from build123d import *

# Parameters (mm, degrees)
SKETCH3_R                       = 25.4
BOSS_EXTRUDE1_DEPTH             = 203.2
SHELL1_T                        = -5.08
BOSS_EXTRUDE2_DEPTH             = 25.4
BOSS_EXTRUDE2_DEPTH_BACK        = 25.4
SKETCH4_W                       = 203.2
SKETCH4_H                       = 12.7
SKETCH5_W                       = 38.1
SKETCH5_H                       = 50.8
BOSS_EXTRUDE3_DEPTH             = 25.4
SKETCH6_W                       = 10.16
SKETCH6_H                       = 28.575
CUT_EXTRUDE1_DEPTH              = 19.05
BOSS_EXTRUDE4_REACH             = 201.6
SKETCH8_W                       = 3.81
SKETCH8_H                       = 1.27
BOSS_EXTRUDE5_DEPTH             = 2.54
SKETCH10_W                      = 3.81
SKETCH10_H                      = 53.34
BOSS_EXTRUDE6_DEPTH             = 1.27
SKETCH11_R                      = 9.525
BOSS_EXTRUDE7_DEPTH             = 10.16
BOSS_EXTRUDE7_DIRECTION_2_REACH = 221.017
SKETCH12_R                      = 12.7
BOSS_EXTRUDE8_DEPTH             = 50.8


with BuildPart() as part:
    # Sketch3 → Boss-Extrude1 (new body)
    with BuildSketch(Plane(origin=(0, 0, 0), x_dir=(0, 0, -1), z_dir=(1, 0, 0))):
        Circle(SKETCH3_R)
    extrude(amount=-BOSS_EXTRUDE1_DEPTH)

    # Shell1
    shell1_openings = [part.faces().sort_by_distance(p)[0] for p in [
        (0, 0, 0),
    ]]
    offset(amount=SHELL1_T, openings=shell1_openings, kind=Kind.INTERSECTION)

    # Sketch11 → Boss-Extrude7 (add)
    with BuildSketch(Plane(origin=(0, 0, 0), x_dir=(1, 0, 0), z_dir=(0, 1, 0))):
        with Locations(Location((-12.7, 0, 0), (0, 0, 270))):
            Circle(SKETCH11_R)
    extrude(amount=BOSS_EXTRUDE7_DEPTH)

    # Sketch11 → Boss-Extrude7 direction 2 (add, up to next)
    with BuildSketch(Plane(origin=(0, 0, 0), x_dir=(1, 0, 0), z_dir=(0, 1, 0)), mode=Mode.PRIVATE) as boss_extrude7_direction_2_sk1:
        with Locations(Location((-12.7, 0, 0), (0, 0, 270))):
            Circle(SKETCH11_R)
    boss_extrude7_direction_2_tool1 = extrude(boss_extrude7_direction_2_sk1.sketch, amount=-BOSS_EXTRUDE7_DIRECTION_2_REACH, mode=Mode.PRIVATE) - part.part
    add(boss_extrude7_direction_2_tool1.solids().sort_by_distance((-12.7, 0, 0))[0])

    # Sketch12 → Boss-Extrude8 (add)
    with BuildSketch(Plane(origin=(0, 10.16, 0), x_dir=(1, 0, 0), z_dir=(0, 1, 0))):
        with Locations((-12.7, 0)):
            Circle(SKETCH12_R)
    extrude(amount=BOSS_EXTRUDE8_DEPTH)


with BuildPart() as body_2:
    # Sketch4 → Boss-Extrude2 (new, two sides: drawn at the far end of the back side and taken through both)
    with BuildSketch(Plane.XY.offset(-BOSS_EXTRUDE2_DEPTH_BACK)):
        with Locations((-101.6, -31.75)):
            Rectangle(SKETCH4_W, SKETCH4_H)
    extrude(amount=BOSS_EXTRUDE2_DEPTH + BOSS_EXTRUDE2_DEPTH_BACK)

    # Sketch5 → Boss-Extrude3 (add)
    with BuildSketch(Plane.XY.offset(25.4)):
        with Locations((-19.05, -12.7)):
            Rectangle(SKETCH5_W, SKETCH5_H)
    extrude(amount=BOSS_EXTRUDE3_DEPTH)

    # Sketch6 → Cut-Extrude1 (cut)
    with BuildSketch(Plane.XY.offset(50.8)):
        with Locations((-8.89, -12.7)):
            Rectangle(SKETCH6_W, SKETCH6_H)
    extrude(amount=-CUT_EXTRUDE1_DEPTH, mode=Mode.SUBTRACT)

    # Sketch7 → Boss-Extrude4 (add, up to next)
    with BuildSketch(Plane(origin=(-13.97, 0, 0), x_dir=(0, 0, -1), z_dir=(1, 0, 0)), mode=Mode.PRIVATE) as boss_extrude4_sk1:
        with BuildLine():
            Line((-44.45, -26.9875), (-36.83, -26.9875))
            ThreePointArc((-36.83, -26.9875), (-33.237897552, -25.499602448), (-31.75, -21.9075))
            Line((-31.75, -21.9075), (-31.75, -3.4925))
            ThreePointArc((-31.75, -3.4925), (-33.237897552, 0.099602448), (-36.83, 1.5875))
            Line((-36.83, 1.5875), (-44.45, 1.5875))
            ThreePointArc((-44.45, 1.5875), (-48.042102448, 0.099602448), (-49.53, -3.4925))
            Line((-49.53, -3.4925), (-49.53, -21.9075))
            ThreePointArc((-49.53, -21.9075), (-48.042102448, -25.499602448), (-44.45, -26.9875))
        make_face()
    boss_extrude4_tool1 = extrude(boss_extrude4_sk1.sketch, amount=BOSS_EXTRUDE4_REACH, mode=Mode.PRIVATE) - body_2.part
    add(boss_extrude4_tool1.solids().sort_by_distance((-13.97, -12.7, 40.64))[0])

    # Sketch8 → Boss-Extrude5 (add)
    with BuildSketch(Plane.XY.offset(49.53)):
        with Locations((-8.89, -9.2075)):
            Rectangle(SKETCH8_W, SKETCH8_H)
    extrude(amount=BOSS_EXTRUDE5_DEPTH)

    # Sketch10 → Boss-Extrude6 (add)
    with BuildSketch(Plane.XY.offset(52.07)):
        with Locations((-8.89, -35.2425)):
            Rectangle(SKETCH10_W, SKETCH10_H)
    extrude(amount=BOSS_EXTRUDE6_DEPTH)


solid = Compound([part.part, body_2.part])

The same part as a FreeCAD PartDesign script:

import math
import FreeCAD as App
import Part
import Sketcher
from FreeCAD import Vector
Q = App.Units.Quantity


def faces_at(feature, points):
    """Names of the faces that lie closest to the given points."""
    faces = feature.Shape.Faces
    near = lambda p: min(range(len(faces)), key=lambda i: faces[i].distToShape(Part.Vertex(*p))[0])
    return sorted({f"Face{near(p) + 1}" for p in points})


def add_polygon(sketch, points):
    """Adds a closed chain of lines whose ends are joined by coincident constraints."""
    first, n = sketch.GeometryCount, len(points)
    for a, b in zip(points, points[1:] + points[:1]):
        sketch.addGeometry(Part.LineSegment(App.Vector(*a, 0), App.Vector(*b, 0)), False)
    for i in range(n):
        sketch.addConstraint(Sketcher.Constraint("Coincident", first + i, 2, first + (i + 1) % n, 1))

doc = App.newDocument("Part")
params = doc.addObject("Spreadsheet::Sheet", "Params")
for row, (alias, value) in enumerate([
    ("sketch1_diameter", "2 in"),
    ("pad1_length", "8 in"),
    ("thickness_wall", "0.2 in"),
    ("sketch2_diameter", "0.75 in"),
    ("pad2_length", "0.4 in"),
    ("sketch3_diameter", "0.75 in"),
    ("sketch4_diameter", "1 in"),
    ("pad4_length", "2 in"),
    ("sketch5_width", "8 in"),
    ("sketch5_height", "0.5 in"),
    ("pad5_length", "1 in"),
    ("pad5_length2", "1 in"),
    ("sketch6_height", "2 in"),
    ("sketch6_width", "1.5 in"),
    ("pad6_length", "1 in"),
    ("sketch7_width", "0.4 in"),
    ("sketch7_height", "1.125 in"),
    ("pocket1_length", "0.75 in"),
    ("sketch8_radius", "0.2 in"),
    ("sketch8_height", "0.3 in"),
    ("sketch8_width", "0.725 in"),
    ("sketch9_width", "0.15 in"),
    ("sketch9_height", "0.05 in"),
    ("pad8_length", "0.1 in"),
    ("sketch10_height", "2.1 in"),
    ("sketch10_width", "0.15 in"),
    ("pad9_length", "0.05 in"),
], start=1):
    params.set(f"A{row}", alias)
    params.set(f"B{row}", "=" + value)
    params.setAlias(f"B{row}", alias)

body = doc.addObject("PartDesign::Body", "Body")
body.AllowCompound = True

sketch1 = doc.addObject("Sketcher::SketchObject", "Sketch")
body.addObject(sketch1)
sketch1.AttachmentSupport = (doc.YZ_Plane, [""])
sketch1.MapMode = "FlatFace"
sketch1.addGeometry(Part.Circle(Vector(0, 0, 0), Vector(0, 0, 1), 25), False)
sketch1.addConstraint([
    Sketcher.Constraint("Coincident", 0, 3, -1, 1),
    Sketcher.Constraint("Diameter", 0, Q("2 in")),
])
sketch1.setExpression("Constraints[1]", "Params.sketch1_diameter")
pad1 = doc.addObject("PartDesign::Pad", "Pad")
body.addObject(pad1)
pad1.Profile = sketch1
pad1.setExpression("Length", "Params.pad1_length")
pad1.Reversed = True
doc.recompute()

thickness = doc.addObject("PartDesign::Thickness", "Thickness")
body.addObject(thickness)
thickness.Base = (pad1, faces_at(pad1, [(0, 0, 0)]))
thickness.setExpression("Value", "Params.thickness_wall")
thickness.Reversed = True
thickness.Join = "Intersection"

sketch2 = doc.addObject("Sketcher::SketchObject", "Sketch001")
body.addObject(sketch2)
sketch2.AttachmentSupport = (doc.XZ_Plane, [""])
sketch2.MapMode = "FlatFace"
sketch2.addGeometry(Part.Circle(Vector(-13, 0, 0), Vector(0, 0, 1), 10), False)
sketch2.addConstraint([
    Sketcher.Constraint("PointOnObject", 0, 3, -1),
    Sketcher.Constraint("Diameter", 0, Q("0.75 in")),
    Sketcher.Constraint("DistanceX", 0, 3, -1, 1, Q("0.5 in")),
])
sketch2.setExpression("Constraints[1]", "Params.sketch2_diameter")
pad2 = doc.addObject("PartDesign::Pad", "Pad001")
body.addObject(pad2)
pad2.Profile = sketch2
pad2.setExpression("Length", "Params.pad2_length")
pad2.Reversed = True

sketch3 = doc.addObject("Sketcher::SketchObject", "Sketch002")
body.addObject(sketch3)
sketch3.AttachmentSupport = (doc.XZ_Plane, [""])
sketch3.MapMode = "FlatFace"
sketch3.addGeometry(Part.Circle(Vector(-13, 0, 0), Vector(0, 0, 1), 10), False)
sketch3.addConstraint([
    Sketcher.Constraint("PointOnObject", 0, 3, -1),
    Sketcher.Constraint("Diameter", 0, Q("0.75 in")),
    Sketcher.Constraint("DistanceX", 0, 3, -1, 1, Q("0.5 in")),
])
sketch3.setExpression("Constraints[1]", "Params.sketch3_diameter")
pad3 = doc.addObject("PartDesign::Pad", "Pad002")
body.addObject(pad3)
pad3.Profile = sketch3
pad3.Type = "UpToFirst"

sketch4 = doc.addObject("Sketcher::SketchObject", "Sketch003")
body.addObject(sketch4)
sketch4.AttachmentSupport = (doc.XZ_Plane, [""])
sketch4.MapMode = "FlatFace"
sketch4.AttachmentOffset = App.Placement(Vector(0, 0, -0.4 * 25.4), App.Rotation())
sketch4.addGeometry(Part.Circle(Vector(-13, 0, 0), Vector(0, 0, 1), 13), False)
sketch4.addConstraint([
    Sketcher.Constraint("PointOnObject", 0, 3, -1),
    Sketcher.Constraint("Diameter", 0, Q("1 in")),
    Sketcher.Constraint("DistanceX", 0, 3, -1, 1, Q("0.5 in")),
])
sketch4.setExpression("Constraints[1]", "Params.sketch4_diameter")
pad4 = doc.addObject("PartDesign::Pad", "Pad003")
body.addObject(pad4)
pad4.Profile = sketch4
pad4.setExpression("Length", "Params.pad4_length")
pad4.Reversed = True
body2 = doc.addObject("PartDesign::Body", "Body001")

sketch5 = doc.addObject("Sketcher::SketchObject", "Sketch004")
body2.addObject(sketch5)
sketch5.AttachmentSupport = (doc.getObject("XY_Plane001"), [""])
sketch5.MapMode = "FlatFace"
add_polygon(sketch5, [(-203, -25), (-203, -38), (0, -38), (0, -25)])
sketch5.addConstraint([
    Sketcher.Constraint("Vertical", 0),
    Sketcher.Constraint("Horizontal", 1),
    Sketcher.Constraint("Vertical", 2),
    Sketcher.Constraint("Horizontal", 3),
    Sketcher.Constraint("PointOnObject", 1, 2, -2),
    Sketcher.Constraint("DistanceX", 1, 1, 1, 2, Q("8 in")),
    Sketcher.Constraint("DistanceY", 0, 2, 0, 1, Q("0.5 in")),
    Sketcher.Constraint("DistanceY", 2, 2, -1, 1, Q("1 in")),
])
sketch5.setExpression("Constraints[9]", "Params.sketch5_width")
sketch5.setExpression("Constraints[10]", "Params.sketch5_height")
pad5 = doc.addObject("PartDesign::Pad", "Pad004")
body2.addObject(pad5)
pad5.Profile = sketch5
pad5.Type = "TwoLengths"
pad5.setExpression("Length", "Params.pad5_length")
pad5.setExpression("Length2", "Params.pad5_length2")

sketch6 = doc.addObject("Sketcher::SketchObject", "Sketch005")
body2.addObject(sketch6)
sketch6.AttachmentSupport = (doc.getObject("XY_Plane001"), [""])
sketch6.MapMode = "FlatFace"
sketch6.AttachmentOffset = App.Placement(Vector(0, 0, 1 * 25.4), App.Rotation())
add_polygon(sketch6, [(-38, 13), (-38, -38), (0, -38), (0, 13)])
sketch6.addConstraint([
    Sketcher.Constraint("Vertical", 0),
    Sketcher.Constraint("Horizontal", 1),
    Sketcher.Constraint("Vertical", 2),
    Sketcher.Constraint("Horizontal", 3),
    Sketcher.Constraint("PointOnObject", 1, 2, -2),
    Sketcher.Constraint("DistanceY", 0, 2, 0, 1, Q("2 in")),
    Sketcher.Constraint("DistanceX", 1, 1, 1, 2, Q("1.5 in")),
    Sketcher.Constraint("DistanceY", 0, 2, -1, 1, Q("1.5 in")),
])
sketch6.setExpression("Constraints[9]", "Params.sketch6_height")
sketch6.setExpression("Constraints[10]", "Params.sketch6_width")
pad6 = doc.addObject("PartDesign::Pad", "Pad005")
body2.addObject(pad6)
pad6.Profile = sketch6
pad6.setExpression("Length", "Params.pad6_length")

sketch7 = doc.addObject("Sketcher::SketchObject", "Sketch006")
body2.addObject(sketch7)
sketch7.AttachmentSupport = (doc.getObject("XY_Plane001"), [""])
sketch7.MapMode = "FlatFace"
sketch7.AttachmentOffset = App.Placement(Vector(0, 0, 2 * 25.4), App.Rotation())
add_polygon(sketch7, [(-14, 2), (-14, -27), (-4, -27), (-4, 2)])
sketch7.addConstraint([
    Sketcher.Constraint("Vertical", 0),
    Sketcher.Constraint("Horizontal", 1),
    Sketcher.Constraint("Vertical", 2),
    Sketcher.Constraint("Horizontal", 3),
    Sketcher.Constraint("DistanceX", 1, 1, 1, 2, Q("0.4 in")),
    Sketcher.Constraint("DistanceY", 0, 2, 0, 1, Q("1.125 in")),
    Sketcher.Constraint("DistanceX", 0, 2, -1, 1, Q("0.55 in")),
    Sketcher.Constraint("DistanceY", 0, 2, -1, 1, Q("1.0625 in")),
])
sketch7.setExpression("Constraints[8]", "Params.sketch7_width")
sketch7.setExpression("Constraints[9]", "Params.sketch7_height")
pocket1 = doc.addObject("PartDesign::Pocket", "Pocket")
body2.addObject(pocket1)
pocket1.Profile = sketch7
pocket1.setExpression("Length", "Params.pocket1_length")

sketch8 = doc.addObject("Sketcher::SketchObject", "Sketch007")
body2.addObject(sketch8)
sketch8.AttachmentSupport = (doc.getObject("YZ_Plane001"), [""])
sketch8.MapMode = "FlatFace"
sketch8.AttachmentOffset = App.Placement(Vector(0, 0, -0.55 * 25.4), App.Rotation())
sketch8.addGeometry([
    Part.LineSegment(Vector(-27, 44, 0), Vector(-27, 37, 0)),
    Part.ArcOfCircle(Part.Circle(Vector(-22, 37, 0), Vector(0, 0, 1), 5), math.radians(-180), math.radians(-90)),
    Part.LineSegment(Vector(-22, 32, 0), Vector(-3, 32, 0)),
    Part.ArcOfCircle(Part.Circle(Vector(-3, 37, 0), Vector(0, 0, 1), 5), math.radians(-90), math.radians(0)),
    Part.LineSegment(Vector(2, 37, 0), Vector(2, 44, 0)),
    Part.ArcOfCircle(Part.Circle(Vector(-3, 44, 0), Vector(0, 0, 1), 5), math.radians(0), math.radians(90)),
    Part.LineSegment(Vector(-3, 50, 0), Vector(-22, 50, 0)),
    Part.ArcOfCircle(Part.Circle(Vector(-22, 44, 0), Vector(0, 0, 1), 5), math.radians(90), math.radians(180)),
], False)
sketch8.addConstraint([
    Sketcher.Constraint("Tangent", 0, 2, 1, 1),
    Sketcher.Constraint("Tangent", 1, 2, 2, 1),
    Sketcher.Constraint("Tangent", 2, 2, 3, 1),
    Sketcher.Constraint("Tangent", 3, 2, 4, 1),
    Sketcher.Constraint("Tangent", 4, 2, 5, 1),
    Sketcher.Constraint("Tangent", 5, 2, 6, 1),
    Sketcher.Constraint("Tangent", 6, 2, 7, 1),
    Sketcher.Constraint("Tangent", 7, 2, 0, 1),
    Sketcher.Constraint("Vertical", 0),
    Sketcher.Constraint("Horizontal", 2),
    Sketcher.Constraint("Vertical", 4),
    Sketcher.Constraint("Horizontal", 6),
    Sketcher.Constraint("Equal", 1, 3),
    Sketcher.Constraint("Equal", 3, 5),
    Sketcher.Constraint("Equal", 5, 7),
    Sketcher.Constraint("Radius", 1, Q("0.2 in")),
    Sketcher.Constraint("DistanceY", 0, 2, 0, 1, Q("0.3 in")),
    Sketcher.Constraint("DistanceX", 2, 1, 2, 2, Q("0.725 in")),
    Sketcher.Constraint("DistanceY", -1, 1, 1, 3, Q("1.45 in")),
    Sketcher.Constraint("DistanceX", 0, 2, -1, 1, Q("1.0625 in")),
])
sketch8.setExpression("Constraints[15]", "Params.sketch8_radius")
sketch8.setExpression("Constraints[16]", "Params.sketch8_height")
sketch8.setExpression("Constraints[17]", "Params.sketch8_width")
pad7 = doc.addObject("PartDesign::Pad", "Pad006")
body2.addObject(pad7)
pad7.Profile = sketch8
pad7.Type = "UpToFirst"

sketch9 = doc.addObject("Sketcher::SketchObject", "Sketch008")
body2.addObject(sketch9)
sketch9.AttachmentSupport = (doc.getObject("XY_Plane001"), [""])
sketch9.MapMode = "FlatFace"
sketch9.AttachmentOffset = App.Placement(Vector(0, 0, 1.95 * 25.4), App.Rotation())
add_polygon(sketch9, [(-10.8, -8.6), (-10.8, -9.8), (-7, -9.8), (-7, -8.6)])
sketch9.addConstraint([
    Sketcher.Constraint("Vertical", 0),
    Sketcher.Constraint("Horizontal", 1),
    Sketcher.Constraint("Vertical", 2),
    Sketcher.Constraint("Horizontal", 3),
    Sketcher.Constraint("DistanceX", 1, 1, 1, 2, Q("0.15 in")),
    Sketcher.Constraint("DistanceY", 0, 2, 0, 1, Q("0.05 in")),
    Sketcher.Constraint("DistanceX", 0, 2, -1, 1, Q("0.425 in")),
    Sketcher.Constraint("DistanceY", 0, 2, -1, 1, Q("0.3875 in")),
])
sketch9.setExpression("Constraints[8]", "Params.sketch9_width")
sketch9.setExpression("Constraints[9]", "Params.sketch9_height")
pad8 = doc.addObject("PartDesign::Pad", "Pad007")
body2.addObject(pad8)
pad8.Profile = sketch9
pad8.setExpression("Length", "Params.pad8_length")

sketch10 = doc.addObject("Sketcher::SketchObject", "Sketch009")
body2.addObject(sketch10)
sketch10.AttachmentSupport = (doc.getObject("XY_Plane001"), [""])
sketch10.MapMode = "FlatFace"
sketch10.AttachmentOffset = App.Placement(Vector(0, 0, 2.05 * 25.4), App.Rotation())
add_polygon(sketch10, [(-10.8, -8.6), (-10.8, -61.9), (-7, -61.9), (-7, -8.6)])
sketch10.addConstraint([
    Sketcher.Constraint("Vertical", 0),
    Sketcher.Constraint("Horizontal", 1),
    Sketcher.Constraint("Vertical", 2),
    Sketcher.Constraint("Horizontal", 3),
    Sketcher.Constraint("DistanceY", 0, 2, 0, 1, Q("2.1 in")),
    Sketcher.Constraint("DistanceX", 1, 1, 1, 2, Q("0.15 in")),
    Sketcher.Constraint("DistanceX", 0, 2, -1, 1, Q("0.425 in")),
    Sketcher.Constraint("DistanceY", 0, 2, -1, 1, Q("2.4375 in")),
])
sketch10.setExpression("Constraints[8]", "Params.sketch10_height")
sketch10.setExpression("Constraints[9]", "Params.sketch10_width")
pad9 = doc.addObject("PartDesign::Pad", "Pad008")
body2.addObject(pad9)
pad9.Profile = sketch10
pad9.setExpression("Length", "Params.pad9_length")

doc.recompute()
